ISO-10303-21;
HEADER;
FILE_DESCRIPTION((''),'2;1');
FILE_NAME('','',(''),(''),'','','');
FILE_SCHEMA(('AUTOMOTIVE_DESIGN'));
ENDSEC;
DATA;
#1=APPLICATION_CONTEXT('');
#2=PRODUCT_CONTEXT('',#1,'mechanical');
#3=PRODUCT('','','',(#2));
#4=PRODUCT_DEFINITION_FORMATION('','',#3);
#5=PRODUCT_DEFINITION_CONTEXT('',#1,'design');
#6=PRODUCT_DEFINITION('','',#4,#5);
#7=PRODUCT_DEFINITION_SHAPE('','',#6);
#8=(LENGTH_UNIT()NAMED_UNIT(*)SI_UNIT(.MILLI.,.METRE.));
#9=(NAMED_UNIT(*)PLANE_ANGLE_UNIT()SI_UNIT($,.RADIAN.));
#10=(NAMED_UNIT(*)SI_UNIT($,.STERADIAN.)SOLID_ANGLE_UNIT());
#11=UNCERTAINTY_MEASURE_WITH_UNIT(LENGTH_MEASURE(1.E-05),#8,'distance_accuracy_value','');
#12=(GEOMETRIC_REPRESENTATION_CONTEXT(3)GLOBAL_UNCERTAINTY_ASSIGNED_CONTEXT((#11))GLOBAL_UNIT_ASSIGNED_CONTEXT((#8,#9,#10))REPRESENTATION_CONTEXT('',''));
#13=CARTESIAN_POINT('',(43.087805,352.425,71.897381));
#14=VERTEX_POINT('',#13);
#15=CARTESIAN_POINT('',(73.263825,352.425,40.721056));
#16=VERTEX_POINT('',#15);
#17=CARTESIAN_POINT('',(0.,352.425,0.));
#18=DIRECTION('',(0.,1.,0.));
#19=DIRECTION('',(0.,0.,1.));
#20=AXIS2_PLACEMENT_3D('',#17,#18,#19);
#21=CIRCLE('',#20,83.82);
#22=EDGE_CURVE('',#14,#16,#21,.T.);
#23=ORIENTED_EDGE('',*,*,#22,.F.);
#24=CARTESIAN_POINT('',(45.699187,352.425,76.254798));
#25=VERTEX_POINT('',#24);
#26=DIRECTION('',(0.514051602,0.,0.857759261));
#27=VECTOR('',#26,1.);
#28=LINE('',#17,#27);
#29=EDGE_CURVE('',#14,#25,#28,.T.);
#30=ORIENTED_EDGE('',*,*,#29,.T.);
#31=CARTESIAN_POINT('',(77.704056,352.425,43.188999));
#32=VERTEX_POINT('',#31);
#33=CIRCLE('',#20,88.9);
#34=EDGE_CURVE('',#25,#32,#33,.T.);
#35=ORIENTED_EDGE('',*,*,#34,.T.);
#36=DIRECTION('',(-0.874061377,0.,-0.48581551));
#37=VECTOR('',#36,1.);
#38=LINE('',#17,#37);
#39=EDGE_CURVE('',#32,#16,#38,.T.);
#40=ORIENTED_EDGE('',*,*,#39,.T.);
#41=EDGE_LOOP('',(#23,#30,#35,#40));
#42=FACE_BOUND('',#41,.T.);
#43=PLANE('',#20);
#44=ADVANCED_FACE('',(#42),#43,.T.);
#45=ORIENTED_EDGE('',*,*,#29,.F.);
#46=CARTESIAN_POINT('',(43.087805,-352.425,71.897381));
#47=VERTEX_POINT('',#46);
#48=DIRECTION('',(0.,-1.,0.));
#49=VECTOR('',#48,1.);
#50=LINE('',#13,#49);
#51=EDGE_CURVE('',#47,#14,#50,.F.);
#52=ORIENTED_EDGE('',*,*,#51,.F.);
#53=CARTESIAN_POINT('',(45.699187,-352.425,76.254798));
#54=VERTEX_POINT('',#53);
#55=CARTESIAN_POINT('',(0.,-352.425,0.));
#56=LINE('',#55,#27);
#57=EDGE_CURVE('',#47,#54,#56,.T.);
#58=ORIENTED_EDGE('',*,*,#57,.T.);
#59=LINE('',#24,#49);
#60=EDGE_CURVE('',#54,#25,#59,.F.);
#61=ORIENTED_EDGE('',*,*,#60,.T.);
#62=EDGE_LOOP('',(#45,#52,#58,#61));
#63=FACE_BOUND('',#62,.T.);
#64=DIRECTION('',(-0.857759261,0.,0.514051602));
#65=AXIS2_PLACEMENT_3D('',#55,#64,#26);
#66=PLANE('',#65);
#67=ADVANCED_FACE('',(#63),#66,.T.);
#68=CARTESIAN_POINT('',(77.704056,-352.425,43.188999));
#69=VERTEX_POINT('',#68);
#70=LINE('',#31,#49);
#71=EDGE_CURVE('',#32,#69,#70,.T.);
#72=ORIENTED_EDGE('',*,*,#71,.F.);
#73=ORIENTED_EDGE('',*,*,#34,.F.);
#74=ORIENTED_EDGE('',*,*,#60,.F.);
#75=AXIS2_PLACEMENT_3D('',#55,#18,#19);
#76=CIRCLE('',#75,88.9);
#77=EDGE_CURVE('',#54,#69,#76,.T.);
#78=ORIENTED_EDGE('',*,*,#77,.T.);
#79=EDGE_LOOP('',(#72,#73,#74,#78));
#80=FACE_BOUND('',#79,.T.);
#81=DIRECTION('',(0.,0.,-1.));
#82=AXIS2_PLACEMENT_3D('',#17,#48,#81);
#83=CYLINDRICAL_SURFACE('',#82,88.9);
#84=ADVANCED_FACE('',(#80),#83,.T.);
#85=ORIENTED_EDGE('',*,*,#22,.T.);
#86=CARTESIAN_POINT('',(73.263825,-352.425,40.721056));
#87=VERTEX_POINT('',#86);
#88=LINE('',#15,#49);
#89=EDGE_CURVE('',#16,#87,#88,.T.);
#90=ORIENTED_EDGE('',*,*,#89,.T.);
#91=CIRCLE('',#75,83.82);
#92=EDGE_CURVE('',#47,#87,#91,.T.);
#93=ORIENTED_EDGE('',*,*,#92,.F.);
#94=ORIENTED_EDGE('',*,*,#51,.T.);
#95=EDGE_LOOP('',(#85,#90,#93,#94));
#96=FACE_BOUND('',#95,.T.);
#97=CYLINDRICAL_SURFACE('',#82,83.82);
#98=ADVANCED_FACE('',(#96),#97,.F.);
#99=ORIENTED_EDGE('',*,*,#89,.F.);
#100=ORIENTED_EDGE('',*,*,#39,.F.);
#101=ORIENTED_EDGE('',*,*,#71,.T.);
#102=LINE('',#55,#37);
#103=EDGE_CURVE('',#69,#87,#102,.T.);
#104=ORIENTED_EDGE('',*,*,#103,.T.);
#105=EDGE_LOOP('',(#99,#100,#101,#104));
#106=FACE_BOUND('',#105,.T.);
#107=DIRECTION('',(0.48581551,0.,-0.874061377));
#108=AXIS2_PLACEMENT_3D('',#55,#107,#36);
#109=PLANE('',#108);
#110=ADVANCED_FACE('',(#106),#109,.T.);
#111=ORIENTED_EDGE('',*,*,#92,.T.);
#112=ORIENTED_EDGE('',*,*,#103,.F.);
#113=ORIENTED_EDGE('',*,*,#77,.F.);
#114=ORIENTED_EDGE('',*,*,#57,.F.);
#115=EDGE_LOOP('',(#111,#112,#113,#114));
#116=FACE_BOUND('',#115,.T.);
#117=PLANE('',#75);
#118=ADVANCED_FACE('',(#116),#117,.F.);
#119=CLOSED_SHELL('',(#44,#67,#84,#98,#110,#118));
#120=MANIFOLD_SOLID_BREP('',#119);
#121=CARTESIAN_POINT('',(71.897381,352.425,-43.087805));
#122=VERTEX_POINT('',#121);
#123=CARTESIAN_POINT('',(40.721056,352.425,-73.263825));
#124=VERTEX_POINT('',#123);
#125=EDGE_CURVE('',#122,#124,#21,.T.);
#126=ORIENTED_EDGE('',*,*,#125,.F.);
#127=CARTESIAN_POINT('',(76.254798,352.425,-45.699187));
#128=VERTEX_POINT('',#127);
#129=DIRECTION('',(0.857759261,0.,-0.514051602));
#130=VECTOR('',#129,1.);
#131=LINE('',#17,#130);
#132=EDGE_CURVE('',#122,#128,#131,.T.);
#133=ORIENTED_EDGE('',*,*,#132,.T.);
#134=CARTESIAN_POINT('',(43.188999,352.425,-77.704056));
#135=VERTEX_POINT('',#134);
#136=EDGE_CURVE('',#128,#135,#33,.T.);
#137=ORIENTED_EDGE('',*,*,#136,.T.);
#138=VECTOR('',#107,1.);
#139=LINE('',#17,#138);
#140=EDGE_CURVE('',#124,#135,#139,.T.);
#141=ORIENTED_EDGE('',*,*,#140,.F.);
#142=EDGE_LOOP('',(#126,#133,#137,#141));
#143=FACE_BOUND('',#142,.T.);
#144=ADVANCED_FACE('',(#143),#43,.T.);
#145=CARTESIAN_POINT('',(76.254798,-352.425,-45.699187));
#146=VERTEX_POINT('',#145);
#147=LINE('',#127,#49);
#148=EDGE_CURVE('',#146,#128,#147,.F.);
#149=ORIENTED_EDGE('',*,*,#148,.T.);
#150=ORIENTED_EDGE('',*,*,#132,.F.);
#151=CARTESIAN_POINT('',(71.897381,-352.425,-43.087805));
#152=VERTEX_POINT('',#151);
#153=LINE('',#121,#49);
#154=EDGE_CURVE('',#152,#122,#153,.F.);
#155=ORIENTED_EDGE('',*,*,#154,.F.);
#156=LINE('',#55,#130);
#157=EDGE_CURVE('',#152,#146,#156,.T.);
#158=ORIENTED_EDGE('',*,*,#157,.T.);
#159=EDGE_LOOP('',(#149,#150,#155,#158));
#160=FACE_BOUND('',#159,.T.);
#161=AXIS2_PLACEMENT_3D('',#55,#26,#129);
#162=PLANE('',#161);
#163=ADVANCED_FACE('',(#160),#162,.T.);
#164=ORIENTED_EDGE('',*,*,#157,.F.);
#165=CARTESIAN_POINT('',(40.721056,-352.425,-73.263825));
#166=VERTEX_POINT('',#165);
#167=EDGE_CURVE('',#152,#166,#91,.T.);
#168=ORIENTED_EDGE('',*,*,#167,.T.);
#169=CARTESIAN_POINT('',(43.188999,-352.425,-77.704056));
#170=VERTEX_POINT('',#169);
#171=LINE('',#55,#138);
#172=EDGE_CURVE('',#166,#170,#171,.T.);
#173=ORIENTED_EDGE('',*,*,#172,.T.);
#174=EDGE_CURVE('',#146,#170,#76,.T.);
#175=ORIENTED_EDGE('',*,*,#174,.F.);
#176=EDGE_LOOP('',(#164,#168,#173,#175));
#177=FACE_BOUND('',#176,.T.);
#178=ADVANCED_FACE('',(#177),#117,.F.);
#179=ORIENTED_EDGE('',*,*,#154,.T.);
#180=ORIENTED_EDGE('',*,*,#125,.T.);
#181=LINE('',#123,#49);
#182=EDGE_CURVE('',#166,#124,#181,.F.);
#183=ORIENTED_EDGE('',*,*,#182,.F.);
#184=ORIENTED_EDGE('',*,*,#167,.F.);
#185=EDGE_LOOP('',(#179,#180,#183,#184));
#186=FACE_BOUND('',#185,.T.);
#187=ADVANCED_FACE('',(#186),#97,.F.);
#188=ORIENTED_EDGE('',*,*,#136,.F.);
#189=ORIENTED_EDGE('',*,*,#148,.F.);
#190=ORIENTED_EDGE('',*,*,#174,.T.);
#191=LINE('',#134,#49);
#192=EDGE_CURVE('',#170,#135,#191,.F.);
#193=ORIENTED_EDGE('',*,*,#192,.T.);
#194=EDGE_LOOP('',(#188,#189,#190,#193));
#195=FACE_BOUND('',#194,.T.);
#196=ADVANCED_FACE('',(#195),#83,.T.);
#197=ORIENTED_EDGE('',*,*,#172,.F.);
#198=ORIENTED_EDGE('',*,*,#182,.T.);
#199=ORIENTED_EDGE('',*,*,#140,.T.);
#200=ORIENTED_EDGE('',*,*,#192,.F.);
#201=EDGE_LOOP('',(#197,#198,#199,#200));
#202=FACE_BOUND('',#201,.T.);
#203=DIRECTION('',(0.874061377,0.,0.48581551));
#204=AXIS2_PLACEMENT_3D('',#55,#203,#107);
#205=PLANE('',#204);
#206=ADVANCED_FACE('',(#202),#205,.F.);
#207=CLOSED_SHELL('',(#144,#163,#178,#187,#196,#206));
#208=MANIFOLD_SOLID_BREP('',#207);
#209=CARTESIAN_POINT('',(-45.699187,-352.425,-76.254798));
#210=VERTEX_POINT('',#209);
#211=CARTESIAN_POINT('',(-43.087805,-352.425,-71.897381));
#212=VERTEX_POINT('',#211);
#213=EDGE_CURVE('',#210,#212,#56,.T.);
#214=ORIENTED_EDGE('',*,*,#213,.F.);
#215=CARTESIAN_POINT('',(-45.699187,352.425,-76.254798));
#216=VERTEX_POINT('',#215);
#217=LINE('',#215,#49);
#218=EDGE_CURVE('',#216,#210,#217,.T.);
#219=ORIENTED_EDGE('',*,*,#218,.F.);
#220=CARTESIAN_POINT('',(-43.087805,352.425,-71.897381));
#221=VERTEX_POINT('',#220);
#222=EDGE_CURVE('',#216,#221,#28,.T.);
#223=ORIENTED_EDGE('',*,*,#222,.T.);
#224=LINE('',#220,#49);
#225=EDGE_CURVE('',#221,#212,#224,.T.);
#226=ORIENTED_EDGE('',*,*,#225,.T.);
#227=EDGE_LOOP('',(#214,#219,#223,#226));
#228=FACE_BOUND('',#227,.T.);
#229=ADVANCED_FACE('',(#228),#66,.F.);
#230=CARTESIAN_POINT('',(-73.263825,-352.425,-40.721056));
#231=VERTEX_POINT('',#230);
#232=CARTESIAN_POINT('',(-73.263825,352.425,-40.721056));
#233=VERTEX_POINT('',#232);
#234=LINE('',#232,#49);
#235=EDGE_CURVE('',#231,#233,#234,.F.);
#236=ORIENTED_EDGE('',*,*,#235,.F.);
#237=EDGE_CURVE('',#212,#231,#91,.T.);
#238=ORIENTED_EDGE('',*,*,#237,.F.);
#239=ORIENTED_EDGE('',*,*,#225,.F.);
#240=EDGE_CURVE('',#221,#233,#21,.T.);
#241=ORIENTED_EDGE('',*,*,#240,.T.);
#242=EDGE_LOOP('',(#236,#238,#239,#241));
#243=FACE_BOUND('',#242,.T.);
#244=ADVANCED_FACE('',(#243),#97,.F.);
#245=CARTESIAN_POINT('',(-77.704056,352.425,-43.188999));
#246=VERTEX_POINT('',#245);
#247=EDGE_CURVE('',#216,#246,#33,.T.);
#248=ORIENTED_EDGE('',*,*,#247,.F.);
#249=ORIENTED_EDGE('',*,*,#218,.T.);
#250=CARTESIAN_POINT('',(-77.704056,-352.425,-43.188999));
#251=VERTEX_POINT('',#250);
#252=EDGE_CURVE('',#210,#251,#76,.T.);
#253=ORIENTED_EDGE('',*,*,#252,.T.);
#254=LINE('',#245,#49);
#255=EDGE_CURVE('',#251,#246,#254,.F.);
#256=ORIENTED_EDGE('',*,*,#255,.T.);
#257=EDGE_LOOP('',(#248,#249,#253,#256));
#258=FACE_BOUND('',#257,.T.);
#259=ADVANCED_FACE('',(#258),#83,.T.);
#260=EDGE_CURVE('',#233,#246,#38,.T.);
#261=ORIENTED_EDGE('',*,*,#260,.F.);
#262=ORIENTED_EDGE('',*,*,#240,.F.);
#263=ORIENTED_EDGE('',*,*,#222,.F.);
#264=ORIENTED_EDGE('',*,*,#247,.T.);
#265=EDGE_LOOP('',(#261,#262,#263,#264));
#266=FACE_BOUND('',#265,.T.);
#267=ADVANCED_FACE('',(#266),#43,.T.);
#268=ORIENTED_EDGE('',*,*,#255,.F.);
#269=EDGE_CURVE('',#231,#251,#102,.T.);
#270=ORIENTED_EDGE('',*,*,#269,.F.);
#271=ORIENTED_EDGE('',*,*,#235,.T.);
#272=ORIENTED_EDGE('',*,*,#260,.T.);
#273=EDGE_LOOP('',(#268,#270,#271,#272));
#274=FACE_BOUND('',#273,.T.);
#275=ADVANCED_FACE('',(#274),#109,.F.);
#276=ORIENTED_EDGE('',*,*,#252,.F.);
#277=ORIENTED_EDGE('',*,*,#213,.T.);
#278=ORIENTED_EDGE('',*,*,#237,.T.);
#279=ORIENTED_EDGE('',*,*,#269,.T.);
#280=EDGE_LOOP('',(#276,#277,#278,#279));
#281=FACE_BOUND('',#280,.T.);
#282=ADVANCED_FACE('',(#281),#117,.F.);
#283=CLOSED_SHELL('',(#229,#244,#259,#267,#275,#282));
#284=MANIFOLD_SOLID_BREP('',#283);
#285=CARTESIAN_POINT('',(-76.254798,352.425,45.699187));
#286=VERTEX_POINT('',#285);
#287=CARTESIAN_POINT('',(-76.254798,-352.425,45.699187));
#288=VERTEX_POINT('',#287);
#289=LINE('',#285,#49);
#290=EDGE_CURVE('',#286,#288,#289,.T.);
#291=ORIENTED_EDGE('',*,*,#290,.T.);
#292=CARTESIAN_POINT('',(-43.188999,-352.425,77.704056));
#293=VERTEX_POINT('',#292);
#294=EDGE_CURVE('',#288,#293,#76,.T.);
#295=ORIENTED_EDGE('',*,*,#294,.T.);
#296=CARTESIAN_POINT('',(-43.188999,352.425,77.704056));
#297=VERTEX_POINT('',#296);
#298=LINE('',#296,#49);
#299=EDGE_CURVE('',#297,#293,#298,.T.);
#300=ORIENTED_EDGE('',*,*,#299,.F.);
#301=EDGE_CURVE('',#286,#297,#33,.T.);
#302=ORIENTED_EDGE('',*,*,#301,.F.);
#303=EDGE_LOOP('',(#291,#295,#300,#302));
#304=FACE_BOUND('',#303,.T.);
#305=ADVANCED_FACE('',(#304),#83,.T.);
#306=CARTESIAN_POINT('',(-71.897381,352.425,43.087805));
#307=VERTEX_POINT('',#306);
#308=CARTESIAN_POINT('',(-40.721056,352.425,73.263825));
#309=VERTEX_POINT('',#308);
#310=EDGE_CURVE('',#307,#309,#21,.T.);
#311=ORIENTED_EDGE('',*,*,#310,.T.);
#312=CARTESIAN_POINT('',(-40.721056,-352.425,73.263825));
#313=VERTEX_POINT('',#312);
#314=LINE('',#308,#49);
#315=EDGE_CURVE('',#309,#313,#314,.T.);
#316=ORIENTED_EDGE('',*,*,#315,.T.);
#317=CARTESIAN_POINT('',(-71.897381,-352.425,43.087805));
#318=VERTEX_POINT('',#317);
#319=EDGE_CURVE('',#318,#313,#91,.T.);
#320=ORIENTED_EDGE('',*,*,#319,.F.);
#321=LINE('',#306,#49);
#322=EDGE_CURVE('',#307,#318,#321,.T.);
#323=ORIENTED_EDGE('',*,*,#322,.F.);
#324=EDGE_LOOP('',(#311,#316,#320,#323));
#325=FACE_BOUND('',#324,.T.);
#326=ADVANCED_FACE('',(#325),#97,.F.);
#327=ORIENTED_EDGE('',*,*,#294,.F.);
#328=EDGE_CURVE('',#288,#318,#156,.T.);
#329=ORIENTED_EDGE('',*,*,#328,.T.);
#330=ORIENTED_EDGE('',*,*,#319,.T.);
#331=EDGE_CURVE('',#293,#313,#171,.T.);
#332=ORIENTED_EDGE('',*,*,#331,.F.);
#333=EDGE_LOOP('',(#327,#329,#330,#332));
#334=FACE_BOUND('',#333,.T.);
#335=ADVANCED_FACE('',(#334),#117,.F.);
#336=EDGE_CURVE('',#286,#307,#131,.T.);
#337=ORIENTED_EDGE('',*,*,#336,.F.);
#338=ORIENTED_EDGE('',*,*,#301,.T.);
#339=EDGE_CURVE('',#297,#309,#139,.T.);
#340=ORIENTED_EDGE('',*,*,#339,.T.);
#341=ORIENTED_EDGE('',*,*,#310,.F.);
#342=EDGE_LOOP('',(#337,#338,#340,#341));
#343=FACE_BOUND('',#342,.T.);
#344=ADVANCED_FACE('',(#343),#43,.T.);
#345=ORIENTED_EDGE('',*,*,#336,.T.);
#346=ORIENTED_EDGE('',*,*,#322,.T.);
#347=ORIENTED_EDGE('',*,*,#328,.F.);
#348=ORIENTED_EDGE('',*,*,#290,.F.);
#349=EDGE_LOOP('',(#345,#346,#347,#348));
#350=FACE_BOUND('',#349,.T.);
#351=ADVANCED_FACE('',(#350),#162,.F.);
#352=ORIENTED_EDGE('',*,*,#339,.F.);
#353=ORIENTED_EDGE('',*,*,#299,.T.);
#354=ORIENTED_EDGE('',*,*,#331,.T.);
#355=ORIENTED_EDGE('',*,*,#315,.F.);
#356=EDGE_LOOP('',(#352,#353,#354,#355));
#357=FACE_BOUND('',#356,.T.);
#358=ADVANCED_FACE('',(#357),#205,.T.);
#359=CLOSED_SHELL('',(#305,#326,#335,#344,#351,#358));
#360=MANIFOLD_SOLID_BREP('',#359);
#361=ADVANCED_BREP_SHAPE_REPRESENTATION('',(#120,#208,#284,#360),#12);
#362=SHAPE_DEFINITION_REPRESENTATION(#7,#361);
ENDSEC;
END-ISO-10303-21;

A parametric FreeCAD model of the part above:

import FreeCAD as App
import Part
import Sketcher

V = App.Vector
Q = App.Units.Quantity

doc = App.newDocument("Part")
body = doc.addObject("PartDesign::Body", "Body")
body.AllowCompound = True

sketch1 = body.newObject("Sketcher::SketchObject", "Sketch")
sketch1.AttachmentSupport = (doc.getObject("XZ_Plane"), [""])
sketch1.MapMode = "FlatFace"
sketch1.addGeometry(Part.Circle(V(0, 0, 0), V(0, 0, 1), 89), False)
sketch1.addGeometry(Part.Circle(V(0, 0, 0), V(0, 0, 1), 84), False)
sketch1.addConstraint(Sketcher.Constraint("Coincident", 0, 3, -1, 1))
sketch1.addConstraint(Sketcher.Constraint("Coincident", 1, 3, -1, 1))
sketch1.addConstraint(Sketcher.Constraint("Diameter", 0, Q("7 in")))
sketch1.addConstraint(Sketcher.Constraint("Diameter", 1, Q("6.6 in")))
pad1 = body.newObject("PartDesign::Pad", "Pad")
pad1.Profile = sketch1
pad1.Length = Q("27.75 in")
pad1.Midplane = True

sketch2 = body.newObject("Sketcher::SketchObject", "Sketch001")
sketch2.AttachmentSupport = (doc.getObject("XZ_Plane"), [""])
sketch2.MapMode = "FlatFace"
sketch2.addGeometry(Part.LineSegment(V(0, 0, 0), V(170, 94, 0)), False)
sketch2.addGeometry(Part.LineSegment(V(170, 94, 0), V(170, -102, 0)), False)
sketch2.addGeometry(Part.LineSegment(V(170, -102, 0), V(0, 0, 0)), False)
sketch2.addGeometry(Part.LineSegment(V(0, 0, 0), V(54, -97, 0)), False)
sketch2.addGeometry(Part.LineSegment(V(54, -97, 0), V(-58, -97, 0)), False)
sketch2.addGeometry(Part.LineSegment(V(-58, -97, 0), V(0, 0, 0)), False)
sketch2.addGeometry(Part.LineSegment(V(-124, -69, 0), V(-124, 74, 0)), False)
sketch2.addGeometry(Part.LineSegment(V(-124, 74, 0), V(0, 0, 0)), False)
sketch2.addGeometry(Part.LineSegment(V(0, 0, 0), V(-124, -69, 0)), False)
sketch2.addGeometry(Part.LineSegment(V(0, 0, 0), V(-66, 118, 0)), False)
sketch2.addGeometry(Part.LineSegment(V(-66, 118, 0), V(71, 118, 0)), False)
sketch2.addGeometry(Part.LineSegment(V(71, 118, 0), V(0, 0, 0)), False)
sketch2.addConstraint(Sketcher.Constraint("Coincident", 0, 2, 1, 1))
sketch2.addConstraint(Sketcher.Constraint("Coincident", 1, 2, 2, 1))
sketch2.addConstraint(Sketcher.Constraint("Coincident", 2, 2, 0, 1))
sketch2.addConstraint(Sketcher.Constraint("Coincident", 3, 2, 4, 1))
sketch2.addConstraint(Sketcher.Constraint("Coincident", 4, 2, 5, 1))
sketch2.addConstraint(Sketcher.Constraint("Coincident", 5, 2, 3, 1))
sketch2.addConstraint(Sketcher.Constraint("Coincident", 6, 2, 7, 1))
sketch2.addConstraint(Sketcher.Constraint("Coincident", 7, 2, 8, 1))
sketch2.addConstraint(Sketcher.Constraint("Coincident", 8, 2, 6, 1))
sketch2.addConstraint(Sketcher.Constraint("Coincident", 9, 2, 10, 1))
sketch2.addConstraint(Sketcher.Constraint("Coincident", 10, 2, 11, 1))
sketch2.addConstraint(Sketcher.Constraint("Coincident", 11, 2, 9, 1))
sketch2.addConstraint(Sketcher.Constraint("Vertical", 1))
sketch2.addConstraint(Sketcher.Constraint("Horizontal", 4))
sketch2.addConstraint(Sketcher.Constraint("Vertical", 6))
sketch2.addConstraint(Sketcher.Constraint("Horizontal", 10))
sketch2.addConstraint(Sketcher.Constraint("Coincident", 2, 2, -1, 1))
sketch2.addConstraint(Sketcher.Constraint("Coincident", 5, 2, -1, 1))
sketch2.addConstraint(Sketcher.Constraint("Coincident", 7, 2, -1, 1))
sketch2.addConstraint(Sketcher.Constraint("Coincident", 11, 2, -1, 1))
sketch2.addConstraint(Sketcher.Constraint("Perpendicular", 0, 3))
sketch2.addConstraint(Sketcher.Constraint("Perpendicular", 2, 5))
sketch2.addConstraint(Sketcher.Constraint("Perpendicular", 5, 7))
sketch2.addConstraint(Sketcher.Constraint("Perpendicular", 3, 8))
sketch2.addConstraint(Sketcher.Constraint("Perpendicular", 8, 9))
sketch2.addConstraint(Sketcher.Constraint("Perpendicular", 7, 11))
sketch2.addConstraint(Sketcher.Constraint("DistanceX", 10, 1, 10, 2, Q("136.832681 mm")))
sketch2.addConstraint(Sketcher.Constraint("DistanceX", 6, 2, -1, 1, Q("123.7413 mm")))
sketch2.addConstraint(Sketcher.Constraint("Distance", 0, Q("194.107371 mm")))
sketch2.addConstraint(Sketcher.Constraint("Distance", 11, Q("138.102371 mm")))
sketch2.addConstraint(Sketcher.Constraint("DistanceX", 4, 2, 4, 1, Q("112.016713 mm")))
sketch2.addConstraint(Sketcher.Constraint("DistanceY", 1, 2, 1, 1, Q("195.977965 mm")))
pocket1 = body.newObject("PartDesign::Pocket", "Pocket")
pocket1.Profile = sketch2
pocket1.Type = "ThroughAll"
pocket1.Midplane = True

doc.recompute()
